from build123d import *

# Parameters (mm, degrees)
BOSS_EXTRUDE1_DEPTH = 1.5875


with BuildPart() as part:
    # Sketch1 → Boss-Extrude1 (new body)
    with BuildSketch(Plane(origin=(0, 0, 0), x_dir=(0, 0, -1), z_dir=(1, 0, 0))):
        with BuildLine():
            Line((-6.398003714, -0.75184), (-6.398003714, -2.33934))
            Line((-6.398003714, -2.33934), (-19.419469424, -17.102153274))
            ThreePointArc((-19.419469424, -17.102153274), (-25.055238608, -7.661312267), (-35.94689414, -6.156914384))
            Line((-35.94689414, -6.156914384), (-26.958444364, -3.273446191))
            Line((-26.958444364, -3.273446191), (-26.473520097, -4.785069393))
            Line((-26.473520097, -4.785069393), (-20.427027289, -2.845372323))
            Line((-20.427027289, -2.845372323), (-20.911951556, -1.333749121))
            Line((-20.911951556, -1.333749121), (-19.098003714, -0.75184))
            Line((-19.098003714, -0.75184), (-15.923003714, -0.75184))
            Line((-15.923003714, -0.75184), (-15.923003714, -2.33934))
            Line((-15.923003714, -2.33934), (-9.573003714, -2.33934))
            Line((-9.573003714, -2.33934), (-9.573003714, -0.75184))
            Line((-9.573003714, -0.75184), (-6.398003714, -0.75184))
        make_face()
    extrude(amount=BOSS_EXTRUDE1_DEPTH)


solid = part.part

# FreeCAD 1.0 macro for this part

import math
import FreeCAD as App
import Part
import Sketcher

V = App.Vector
Q = App.Units.Quantity

doc = App.newDocument("Part")
body = doc.addObject("PartDesign::Body", "Body")

# Sketch on YZ plane
sketch1 = doc.addObject("Sketcher::SketchObject", "Sketch")
body.addObject(sketch1)
sketch1.AttachmentSupport = (doc.YZ_Plane, [""])
sketch1.MapMode = "FlatFace"
sketch1.addGeometry([
    Part.LineSegment(V(-2.3, 6.4, 0), V(-0.8, 6.4, 0)),  # 0
    Part.LineSegment(V(-0.8, 6.4, 0), V(-0.8, 9.6, 0)),  # 1
    Part.LineSegment(V(-0.8, 9.6, 0), V(-2.3, 9.6, 0)),  # 2
    Part.LineSegment(V(-2.3, 9.6, 0), V(-2.3, 15.9, 0)),  # 3
    Part.LineSegment(V(-2.3, 15.9, 0), V(-0.8, 15.9, 0)),  # 4
    Part.LineSegment(V(-0.8, 15.9, 0), V(-0.8, 19.1, 0)),  # 5
    Part.LineSegment(V(-0.8, 19.1, 0), V(-1.3, 20.9, 0)),  # 6
    Part.LineSegment(V(-1.3, 20.9, 0), V(-2.8, 20.4, 0)),  # 7
    Part.LineSegment(V(-2.8, 20.4, 0), V(-4.8, 26.5, 0)),  # 8
    Part.LineSegment(V(-4.8, 26.5, 0), V(-3.3, 27, 0)),  # 9
    Part.LineSegment(V(-3.3, 27, 0), V(-6.2, 35.9, 0)),  # 10
    Part.ArcOfCircle(Part.Circle(V(-18.2, 32.1, 0), V(0, 0, 1), 12.7), math.radians(-85), math.radians(18)),  # 11
    Part.LineSegment(V(-17.1, 19.4, 0), V(-2.3, 6.4, 0)),  # 12
], False)
sketch1.addConstraint([
    Sketcher.Constraint("Coincident", 0, 2, 1, 1),
    Sketcher.Constraint("Coincident", 1, 2, 2, 1),
    Sketcher.Constraint("Coincident", 2, 2, 3, 1),
    Sketcher.Constraint("Coincident", 3, 2, 4, 1),
    Sketcher.Constraint("Coincident", 4, 2, 5, 1),
    Sketcher.Constraint("Coincident", 5, 2, 6, 1),
    Sketcher.Constraint("Coincident", 6, 2, 7, 1),
    Sketcher.Constraint("Coincident", 7, 2, 8, 1),
    Sketcher.Constraint("Coincident", 8, 2, 9, 1),
    Sketcher.Constraint("Coincident", 9, 2, 10, 1),
    Sketcher.Constraint("Tangent", 10, 2, 11, 2),
    Sketcher.Constraint("Coincident", 11, 1, 12, 1),
    Sketcher.Constraint("Coincident", 12, 2, 0, 1),
    Sketcher.Constraint("Horizontal", 0),
    Sketcher.Constraint("Vertical", 1),
    Sketcher.Constraint("Horizontal", 2),
    Sketcher.Constraint("Vertical", 3),
    Sketcher.Constraint("Horizontal", 4),
    Sketcher.Constraint("Vertical", 5),
    Sketcher.Constraint("Perpendicular", 6, 7),
    Sketcher.Constraint("Perpendicular", 7, 8),
    Sketcher.Constraint("Perpendicular", 8, 9),
    Sketcher.Constraint("Perpendicular", 9, 10),
    Sketcher.Constraint("Vertical", 1, 2, 4, 2),
    Sketcher.Constraint("Vertical", 3, 2, 12, 2),
    Sketcher.Constraint("Equal", 1, 5),
    Sketcher.Constraint("Equal", 7, 9),
    Sketcher.Constraint("Radius", 11, Q("0.5 in")),
    Sketcher.Constraint("DistanceY", 3, 1, 3, 2, Q("0.25 in")),
    Sketcher.Constraint("DistanceY", 0, 2, 5, 2, Q("0.5 in")),
    Sketcher.Constraint("Distance", 8, Q("0.25 in")),
    Sketcher.Constraint("DistanceX", 0, 1, 0, 2, Q("0.0625 in")),
    Sketcher.Constraint("Distance", 6, Q("0.075 in")),
    Sketcher.Constraint("Distance", 7, Q("0.0625 in")),
    Sketcher.Constraint("Distance", 12, Q("0.775 in")),
    Sketcher.Constraint("DistanceX", 11, 3, -1, 1, Q("0.7185 in")),
    Sketcher.Constraint("DistanceY", -1, 1, 11, 3, Q("1.2625 in")),
    Sketcher.Constraint("DistanceX", 0, 2, -1, 1, Q("0.0296 in")),
    Sketcher.Constraint("Distance", 10, 9.43963),
])
pad1 = doc.addObject("PartDesign::Pad", "Pad")
body.addObject(pad1)
pad1.Profile = sketch1
pad1.Length = Q("0.0625 in")

doc.recompute()
